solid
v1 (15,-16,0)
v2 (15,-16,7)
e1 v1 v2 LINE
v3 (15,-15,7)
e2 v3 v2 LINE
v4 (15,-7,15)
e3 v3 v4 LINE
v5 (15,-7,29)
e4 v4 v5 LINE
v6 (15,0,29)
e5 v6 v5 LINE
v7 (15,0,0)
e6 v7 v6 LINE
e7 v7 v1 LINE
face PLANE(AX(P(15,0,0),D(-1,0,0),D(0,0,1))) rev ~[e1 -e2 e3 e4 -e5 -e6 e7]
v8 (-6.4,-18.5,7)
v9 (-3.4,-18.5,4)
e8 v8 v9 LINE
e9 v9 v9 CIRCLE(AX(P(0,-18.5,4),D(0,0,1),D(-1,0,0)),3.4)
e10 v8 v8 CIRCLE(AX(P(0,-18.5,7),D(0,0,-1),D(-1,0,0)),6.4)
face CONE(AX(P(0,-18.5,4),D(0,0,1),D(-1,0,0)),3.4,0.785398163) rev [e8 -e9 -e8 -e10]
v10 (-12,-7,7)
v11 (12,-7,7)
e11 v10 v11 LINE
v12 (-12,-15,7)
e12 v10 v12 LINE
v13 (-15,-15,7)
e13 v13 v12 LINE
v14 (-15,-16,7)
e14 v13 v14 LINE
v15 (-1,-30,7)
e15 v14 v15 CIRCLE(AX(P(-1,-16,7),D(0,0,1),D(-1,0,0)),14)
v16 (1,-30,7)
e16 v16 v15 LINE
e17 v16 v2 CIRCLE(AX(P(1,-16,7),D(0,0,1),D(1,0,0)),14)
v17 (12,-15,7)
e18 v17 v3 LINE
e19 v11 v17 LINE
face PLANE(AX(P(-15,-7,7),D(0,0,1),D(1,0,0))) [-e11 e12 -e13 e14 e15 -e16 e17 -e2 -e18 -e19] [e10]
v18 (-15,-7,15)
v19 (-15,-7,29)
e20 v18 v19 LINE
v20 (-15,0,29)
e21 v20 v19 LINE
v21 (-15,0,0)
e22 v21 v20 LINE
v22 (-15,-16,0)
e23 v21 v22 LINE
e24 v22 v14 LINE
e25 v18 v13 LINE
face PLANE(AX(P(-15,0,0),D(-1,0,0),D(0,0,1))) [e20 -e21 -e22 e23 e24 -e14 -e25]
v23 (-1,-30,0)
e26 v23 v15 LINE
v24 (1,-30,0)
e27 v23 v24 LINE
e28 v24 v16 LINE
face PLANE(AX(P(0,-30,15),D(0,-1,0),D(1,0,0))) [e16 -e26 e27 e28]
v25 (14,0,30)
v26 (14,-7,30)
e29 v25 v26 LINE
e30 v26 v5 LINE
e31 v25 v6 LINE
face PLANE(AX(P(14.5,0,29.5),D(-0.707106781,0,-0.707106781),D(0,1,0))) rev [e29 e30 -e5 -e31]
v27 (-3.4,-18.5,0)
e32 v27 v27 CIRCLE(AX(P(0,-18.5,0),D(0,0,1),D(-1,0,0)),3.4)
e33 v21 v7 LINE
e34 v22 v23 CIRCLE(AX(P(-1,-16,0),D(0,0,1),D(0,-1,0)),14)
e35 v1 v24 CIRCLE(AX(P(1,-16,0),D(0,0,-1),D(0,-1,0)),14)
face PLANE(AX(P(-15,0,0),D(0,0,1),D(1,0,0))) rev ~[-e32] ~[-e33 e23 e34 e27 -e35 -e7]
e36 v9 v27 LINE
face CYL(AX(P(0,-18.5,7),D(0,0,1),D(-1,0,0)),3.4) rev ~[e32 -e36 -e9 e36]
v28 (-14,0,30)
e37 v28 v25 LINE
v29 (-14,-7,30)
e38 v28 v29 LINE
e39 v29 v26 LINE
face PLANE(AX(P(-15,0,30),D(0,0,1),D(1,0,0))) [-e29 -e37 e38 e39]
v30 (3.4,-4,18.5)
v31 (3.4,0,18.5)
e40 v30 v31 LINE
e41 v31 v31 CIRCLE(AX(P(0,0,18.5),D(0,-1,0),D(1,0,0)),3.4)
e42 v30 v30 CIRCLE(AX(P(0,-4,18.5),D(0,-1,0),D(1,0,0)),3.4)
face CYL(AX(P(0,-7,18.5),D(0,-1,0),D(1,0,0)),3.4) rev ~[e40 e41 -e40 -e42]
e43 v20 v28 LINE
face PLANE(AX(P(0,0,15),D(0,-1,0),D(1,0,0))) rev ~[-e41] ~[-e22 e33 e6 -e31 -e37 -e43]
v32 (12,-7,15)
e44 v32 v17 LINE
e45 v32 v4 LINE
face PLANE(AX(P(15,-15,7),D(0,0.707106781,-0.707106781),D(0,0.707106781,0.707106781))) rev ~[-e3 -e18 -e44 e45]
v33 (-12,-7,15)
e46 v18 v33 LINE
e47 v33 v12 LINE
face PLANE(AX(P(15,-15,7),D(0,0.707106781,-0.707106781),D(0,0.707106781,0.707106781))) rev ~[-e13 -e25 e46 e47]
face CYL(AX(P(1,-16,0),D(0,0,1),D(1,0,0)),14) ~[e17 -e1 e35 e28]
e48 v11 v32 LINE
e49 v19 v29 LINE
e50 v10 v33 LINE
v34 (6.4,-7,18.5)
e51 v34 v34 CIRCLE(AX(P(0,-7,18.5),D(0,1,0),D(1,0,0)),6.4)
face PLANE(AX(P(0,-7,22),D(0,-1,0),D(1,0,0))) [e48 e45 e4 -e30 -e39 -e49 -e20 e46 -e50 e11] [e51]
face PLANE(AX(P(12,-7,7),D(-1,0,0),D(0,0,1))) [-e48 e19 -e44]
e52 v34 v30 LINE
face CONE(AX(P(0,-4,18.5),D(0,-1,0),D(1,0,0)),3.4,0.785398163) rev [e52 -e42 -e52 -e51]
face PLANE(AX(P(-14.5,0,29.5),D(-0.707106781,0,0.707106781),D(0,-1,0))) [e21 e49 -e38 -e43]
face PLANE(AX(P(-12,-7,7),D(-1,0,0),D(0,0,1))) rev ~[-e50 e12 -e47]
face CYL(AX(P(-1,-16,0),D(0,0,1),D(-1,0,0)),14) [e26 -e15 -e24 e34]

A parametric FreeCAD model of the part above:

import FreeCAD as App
import Part
import Sketcher
from FreeCAD import Vector


def edges_at(feature, points):
    """Names of the edges that pass closest to the given points."""
    edges = feature.Shape.Edges
    near = lambda p: min(range(len(edges)), key=lambda i: edges[i].distToShape(Part.Vertex(*p))[0])
    return sorted({f"Edge{near(p) + 1}" for p in points})

doc = App.newDocument("Part")
body = doc.addObject("PartDesign::Body", "Body")

# Sketch on XZ plane
sketch1 = doc.addObject("Sketcher::SketchObject", "Sketch")
body.addObject(sketch1)
sketch1.AttachmentSupport = (doc.XZ_Plane, [""])
sketch1.MapMode = "FlatFace"
sketch1.addGeometry([
    Part.LineSegment(Vector(-15, 30, 0), Vector(-15, 0, 0)),
    Part.LineSegment(Vector(-15, 0, 0), Vector(15, 0, 0)),
    Part.LineSegment(Vector(15, 0, 0), Vector(15, 30, 0)),
    Part.LineSegment(Vector(15, 30, 0), Vector(-15, 30, 0)),
], False)
sketch1.addConstraint([
    Sketcher.Constraint("Coincident", 0, 2, 1, 1),
    Sketcher.Constraint("Coincident", 1, 2, 2, 1),
    Sketcher.Constraint("Coincident", 2, 2, 3, 1),
    Sketcher.Constraint("Coincident", 3, 2, 0, 1),
    Sketcher.Constraint("Vertical", 0),
    Sketcher.Constraint("Horizontal", 1),
    Sketcher.Constraint("Vertical", 2),
    Sketcher.Constraint("Horizontal", 3),
    Sketcher.Constraint("Symmetric", 0, 2, 1, 2, -1, 1),
    Sketcher.Constraint("Equal", 3, 0),
    Sketcher.Constraint("DistanceX", 1, 1, 1, 2, 30.0),
])
pad1 = doc.addObject("PartDesign::Pad", "Pad")
body.addObject(pad1)
pad1.Profile = sketch1
pad1.Length = 30
doc.recompute()

fillet = doc.addObject("PartDesign::Fillet", "Fillet")
body.addObject(fillet)
fillet.Base = (pad1, edges_at(pad1, [(15, -30, 15), (-15, -30, 15)]))
fillet.Radius = 14

# Sketch on XZ plane
sketch2 = doc.addObject("Sketcher::SketchObject", "Sketch001")
body.addObject(sketch2)
sketch2.AttachmentSupport = (doc.XZ_Plane, [""])
sketch2.MapMode = "FlatFace"
sketch2.AttachmentOffset = App.Placement(Vector(0, 0, 7), App.Rotation())
sketch2.addGeometry([
    Part.LineSegment(Vector(-15, 37, 0), Vector(-15, 7, 0)),
    Part.LineSegment(Vector(-15, 7, 0), Vector(15, 7, 0)),
    Part.LineSegment(Vector(15, 7, 0), Vector(15, 37, 0)),
    Part.LineSegment(Vector(15, 37, 0), Vector(-15, 37, 0)),
], False)
sketch2.addConstraint([
    Sketcher.Constraint("Coincident", 0, 2, 1, 1),
    Sketcher.Constraint("Coincident", 1, 2, 2, 1),
    Sketcher.Constraint("Coincident", 2, 2, 3, 1),
    Sketcher.Constraint("Coincident", 3, 2, 0, 1),
    Sketcher.Constraint("Vertical", 0),
    Sketcher.Constraint("Horizontal", 1),
    Sketcher.Constraint("Vertical", 2),
    Sketcher.Constraint("Horizontal", 3),
    Sketcher.Constraint("Equal", 3, 0),
    Sketcher.Constraint("DistanceX", 1, 1, 1, 2, 30.0),
    Sketcher.Constraint("DistanceX", 0, 2, -1, 1, 15.0),
    Sketcher.Constraint("DistanceY", -1, 1, 0, 2, 7.0),
])
pocket1 = doc.addObject("PartDesign::Pocket", "Pocket")
body.addObject(pocket1)
pocket1.Profile = sketch2
pocket1.Length = 30
pocket1.Reversed = True

# Sketch on XZ plane
sketch3 = doc.addObject("Sketcher::SketchObject", "Sketch002")
body.addObject(sketch3)
sketch3.AttachmentSupport = (doc.XZ_Plane, [""])
sketch3.MapMode = "FlatFace"
sketch3.AttachmentOffset = App.Placement(Vector(0, 0, 7), App.Rotation())
sketch3.addGeometry(Part.Circle(Vector(0, 18.5, 0), Vector(0, 0, 1), 3.4), False)
sketch3.addConstraint([
    Sketcher.Constraint("PointOnObject", 0, 3, -2),
    Sketcher.Constraint("Diameter", 0, 6.8),
    Sketcher.Constraint("DistanceY", -1, 1, 0, 3, 18.5),
])
pocket2 = doc.addObject("PartDesign::Pocket", "Pocket001")
body.addObject(pocket2)
pocket2.Profile = sketch3
pocket2.Length = 7

# Sketch on XY plane
sketch4 = doc.addObject("Sketcher::SketchObject", "Sketch003")
body.addObject(sketch4)
sketch4.AttachmentSupport = (doc.XY_Plane, [""])
sketch4.MapMode = "FlatFace"
sketch4.AttachmentOffset = App.Placement(Vector(0, 0, 7), App.Rotation())
sketch4.addGeometry(Part.Circle(Vector(0, -18.5, 0), Vector(0, 0, 1), 3.4), False)
sketch4.addConstraint([
    Sketcher.Constraint("PointOnObject", 0, 3, -2),
    Sketcher.Constraint("Diameter", 0, 6.8),
    Sketcher.Constraint("DistanceY", 0, 3, -1, 1, 18.5),
])
pocket3 = doc.addObject("PartDesign::Pocket", "Pocket002")
body.addObject(pocket3)
pocket3.Profile = sketch4
pocket3.Length = 7
doc.recompute()

chamfer = doc.addObject("PartDesign::Chamfer", "Chamfer")
body.addObject(chamfer)
chamfer.Base = (pocket3, edges_at(pocket3, [(-3.4, -7, 18.5), (3.4, -18.5, 7)]))
chamfer.Size = 3
doc.recompute()

chamfer2 = doc.addObject("PartDesign::Chamfer", "Chamfer001")
body.addObject(chamfer2)
chamfer2.Base = (chamfer, edges_at(chamfer, [(15, -3.5, 30), (-15, -3.5, 30)]))
chamfer2.Size = 1

# Sketch on XZ plane
sketch5 = doc.addObject("Sketcher::SketchObject", "Sketch004")
body.addObject(sketch5)
sketch5.AttachmentSupport = (doc.XZ_Plane, [""])
sketch5.MapMode = "FlatFace"
sketch5.AttachmentOffset = App.Placement(Vector(0, 0, 7), App.Rotation())
sketch5.addGeometry([
    Part.LineSegment(Vector(12, 15, 0), Vector(12, 7, 0)),  # 0
    Part.LineSegment(Vector(12, 7, 0), Vector(15, 7, 0)),  # 1
    Part.LineSegment(Vector(15, 7, 0), Vector(15, 15, 0)),  # 2
    Part.LineSegment(Vector(15, 15, 0), Vector(12, 15, 0)),  # 3
    Part.LineSegment(Vector(-15, 15, 0), Vector(-15, 7, 0)),  # 4
    Part.LineSegment(Vector(-15, 7, 0), Vector(-12, 7, 0)),  # 5
    Part.LineSegment(Vector(-12, 7, 0), Vector(-12, 15, 0)),  # 6
    Part.LineSegment(Vector(-12, 15, 0), Vector(-15, 15, 0)),  # 7
], False)
sketch5.addConstraint([
    Sketcher.Constraint("Coincident", 0, 2, 1, 1),
    Sketcher.Constraint("Coincident", 1, 2, 2, 1),
    Sketcher.Constraint("Coincident", 2, 2, 3, 1),
    Sketcher.Constraint("Coincident", 3, 2, 0, 1),
    Sketcher.Constraint("Coincident", 4, 2, 5, 1),
    Sketcher.Constraint("Coincident", 5, 2, 6, 1),
    Sketcher.Constraint("Coincident", 6, 2, 7, 1),
    Sketcher.Constraint("Coincident", 7, 2, 4, 1),
    Sketcher.Constraint("Vertical", 0),
    Sketcher.Constraint("Horizontal", 1),
    Sketcher.Constraint("Vertical", 2),
    Sketcher.Constraint("Horizontal", 3),
    Sketcher.Constraint("Vertical", 4),
    Sketcher.Constraint("Horizontal", 5),
    Sketcher.Constraint("Vertical", 6),
    Sketcher.Constraint("Horizontal", 7),
    Sketcher.Constraint("Symmetric", 1, 2, 4, 2, -2),
    Sketcher.Constraint("Symmetric", 3, 2, 6, 2, -2),
    Sketcher.Constraint("DistanceX", 1, 1, 1, 2, 3.0),
    Sketcher.Constraint("DistanceY", 0, 2, 0, 1, 8.0),
    Sketcher.Constraint("DistanceX", -1, 1, 0, 2, 12.0),
    Sketcher.Constraint("DistanceY", -1, 1, 0, 2, 7.0),
])
pad2 = doc.addObject("PartDesign::Pad", "Pad001")
body.addObject(pad2)
pad2.Profile = sketch5
pad2.Length = 8

# Sketch on YZ plane
sketch6 = doc.addObject("Sketcher::SketchObject", "Sketch005")
body.addObject(sketch6)
sketch6.AttachmentSupport = (doc.YZ_Plane, [""])
sketch6.MapMode = "FlatFace"
sketch6.AttachmentOffset = App.Placement(Vector(0, 0, 15), App.Rotation())
sketch6.addGeometry([
    Part.LineSegment(Vector(-15, 7, 0), Vector(-7, 15, 0)),
    Part.LineSegment(Vector(-7, 15, 0), Vector(-15, 15, 0)),
    Part.LineSegment(Vector(-15, 15, 0), Vector(-15, 7, 0)),
], False)
sketch6.addConstraint([
    Sketcher.Constraint("Coincident", 0, 2, 1, 1),
    Sketcher.Constraint("Coincident", 1, 2, 2, 1),
    Sketcher.Constraint("Coincident", 2, 2, 0, 1),
    Sketcher.Constraint("Horizontal", 1),
    Sketcher.Constraint("Vertical", 2),
    Sketcher.Constraint("Equal", 1, 2),
    Sketcher.Constraint("DistanceX", 1, 2, 1, 1, 8.0),
    Sketcher.Constraint("DistanceX", 0, 2, -1, 1, 7.0),
    Sketcher.Constraint("DistanceY", -1, 1, 0, 2, 15.0),
])
pocket4 = doc.addObject("PartDesign::Pocket", "Pocket003")
body.addObject(pocket4)
pocket4.Profile = sketch6
pocket4.Type = "ThroughAll"

doc.recompute()
